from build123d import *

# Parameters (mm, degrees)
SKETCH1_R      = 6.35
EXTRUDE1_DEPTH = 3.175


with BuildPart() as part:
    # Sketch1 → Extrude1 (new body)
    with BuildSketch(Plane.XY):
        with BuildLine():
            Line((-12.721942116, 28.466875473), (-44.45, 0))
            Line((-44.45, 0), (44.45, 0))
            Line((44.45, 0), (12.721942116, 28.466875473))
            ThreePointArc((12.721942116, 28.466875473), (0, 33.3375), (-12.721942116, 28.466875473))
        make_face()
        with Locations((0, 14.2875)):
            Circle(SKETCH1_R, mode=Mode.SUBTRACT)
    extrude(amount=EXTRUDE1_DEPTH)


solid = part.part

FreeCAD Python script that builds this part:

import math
import FreeCAD as App
import Part
import Sketcher
from FreeCAD import Vector
Q = App.Units.Quantity

doc = App.newDocument("Part")
params = doc.addObject("Spreadsheet::Sheet", "Params")
for row, (alias, value) in enumerate([
    ("sketch1_diameter", "0.5 in"),
    ("sketch1_radius", "0.75 in"),
    ("sketch1_width", "3.5 in"),
    ("pad1_length", "0.125 in"),
], start=1):
    params.set(f"A{row}", alias)
    params.set(f"B{row}", "=" + value)
    params.setAlias(f"B{row}", alias)

body = doc.addObject("PartDesign::Body", "Body")

# Sketch on XY plane
sketch1 = doc.addObject("Sketcher::SketchObject", "Sketch")
body.addObject(sketch1)
sketch1.AttachmentSupport = (doc.XY_Plane, [""])
sketch1.MapMode = "FlatFace"
sketch1.addGeometry(Part.LineSegment(Vector(-13, 28, 0), Vector(-44, 0, 0)), False)
sketch1.addGeometry(Part.LineSegment(Vector(-44, 0, 0), Vector(44, 0, 0)), False)
sketch1.addGeometry(Part.LineSegment(Vector(44, 0, 0), Vector(13, 28, 0)), False)
sketch1.addGeometry(Part.ArcOfCircle(Part.Circle(Vector(0, 14, 0), Vector(0, 0, 1), 19), math.radians(48), math.radians(132)), False)
sketch1.addGeometry(Part.Circle(Vector(0, 14, 0), Vector(0, 0, 1), 6), False)
sketch1.addConstraint(Sketcher.Constraint("Coincident", 0, 2, 1, 1))
sketch1.addConstraint(Sketcher.Constraint("Coincident", 1, 2, 2, 1))
sketch1.addConstraint(Sketcher.Constraint("Tangent", 2, 2, 3, 1))
sketch1.addConstraint(Sketcher.Constraint("Tangent", 3, 2, 0, 1))
sketch1.addConstraint(Sketcher.Constraint("Horizontal", 1))
sketch1.addConstraint(Sketcher.Constraint("Coincident", 4, 3, 3, 3))
sketch1.addConstraint(Sketcher.Constraint("Symmetric", 0, 2, 1, 2, -1, 1))
sketch1.addConstraint(Sketcher.Constraint("PointOnObject", 3, 3, -2))
sketch1.addConstraint(Sketcher.Constraint("Diameter", 4, Q("0.5 in")))
sketch1.addConstraint(Sketcher.Constraint("Radius", 3, Q("0.75 in")))
sketch1.addConstraint(Sketcher.Constraint("DistanceX", 1, 1, 1, 2, Q("3.5 in")))
sketch1.addConstraint(Sketcher.Constraint("DistanceY", -1, 1, 3, 3, Q("0.5625 in")))
sketch1.setExpression("Constraints[8]", "Params.sketch1_diameter")
sketch1.setExpression("Constraints[9]", "Params.sketch1_radius")
sketch1.setExpression("Constraints[10]", "Params.sketch1_width")
pad1 = doc.addObject("PartDesign::Pad", "Pad")
body.addObject(pad1)
pad1.Profile = sketch1
pad1.setExpression("Length", "Params.pad1_length")

doc.recompute()
